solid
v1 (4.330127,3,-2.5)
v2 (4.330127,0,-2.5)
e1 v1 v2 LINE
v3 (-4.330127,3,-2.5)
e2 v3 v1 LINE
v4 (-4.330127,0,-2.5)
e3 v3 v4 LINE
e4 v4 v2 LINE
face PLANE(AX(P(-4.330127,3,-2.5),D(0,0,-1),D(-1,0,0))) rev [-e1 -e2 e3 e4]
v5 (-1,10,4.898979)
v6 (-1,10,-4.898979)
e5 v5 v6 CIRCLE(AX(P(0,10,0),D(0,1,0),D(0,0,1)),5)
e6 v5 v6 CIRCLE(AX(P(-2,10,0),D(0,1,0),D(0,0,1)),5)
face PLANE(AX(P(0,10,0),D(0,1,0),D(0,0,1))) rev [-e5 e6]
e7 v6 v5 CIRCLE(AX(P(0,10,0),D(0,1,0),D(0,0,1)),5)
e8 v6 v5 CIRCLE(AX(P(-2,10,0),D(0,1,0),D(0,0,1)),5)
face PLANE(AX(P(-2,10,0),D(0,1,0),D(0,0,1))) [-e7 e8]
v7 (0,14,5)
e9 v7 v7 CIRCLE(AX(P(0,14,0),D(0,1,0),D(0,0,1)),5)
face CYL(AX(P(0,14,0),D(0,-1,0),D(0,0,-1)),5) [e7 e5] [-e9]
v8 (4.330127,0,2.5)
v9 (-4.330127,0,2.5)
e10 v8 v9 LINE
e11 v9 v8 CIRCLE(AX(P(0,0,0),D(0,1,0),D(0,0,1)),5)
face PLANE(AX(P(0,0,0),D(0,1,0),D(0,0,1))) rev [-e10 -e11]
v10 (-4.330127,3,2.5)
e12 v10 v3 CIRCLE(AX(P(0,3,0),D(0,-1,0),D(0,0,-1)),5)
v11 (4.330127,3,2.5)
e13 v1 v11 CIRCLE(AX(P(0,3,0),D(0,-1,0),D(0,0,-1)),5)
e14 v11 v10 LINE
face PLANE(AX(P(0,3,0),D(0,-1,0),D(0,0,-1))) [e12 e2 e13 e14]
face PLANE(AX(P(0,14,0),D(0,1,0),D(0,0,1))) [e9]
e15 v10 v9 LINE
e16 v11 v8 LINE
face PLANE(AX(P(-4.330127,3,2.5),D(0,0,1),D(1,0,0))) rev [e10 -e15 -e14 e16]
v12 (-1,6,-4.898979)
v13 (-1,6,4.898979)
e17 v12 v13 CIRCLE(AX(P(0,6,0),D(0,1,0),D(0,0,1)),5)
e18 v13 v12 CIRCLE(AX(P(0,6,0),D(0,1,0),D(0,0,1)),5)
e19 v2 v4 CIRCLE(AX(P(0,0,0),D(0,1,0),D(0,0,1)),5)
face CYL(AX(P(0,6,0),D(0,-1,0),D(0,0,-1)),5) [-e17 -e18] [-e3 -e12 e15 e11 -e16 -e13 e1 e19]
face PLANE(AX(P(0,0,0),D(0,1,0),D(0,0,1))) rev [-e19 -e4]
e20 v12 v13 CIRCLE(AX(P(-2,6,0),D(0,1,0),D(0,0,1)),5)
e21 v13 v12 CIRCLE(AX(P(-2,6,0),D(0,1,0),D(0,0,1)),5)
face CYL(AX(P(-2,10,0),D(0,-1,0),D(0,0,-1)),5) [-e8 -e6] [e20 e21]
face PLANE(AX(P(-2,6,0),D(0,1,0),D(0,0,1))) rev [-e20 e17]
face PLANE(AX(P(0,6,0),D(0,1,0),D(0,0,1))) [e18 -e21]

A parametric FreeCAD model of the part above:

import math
import FreeCAD as App
import Part
import Sketcher

V = App.Vector
Q = App.Units.Quantity

doc = App.newDocument("Part")
params = doc.addObject("Spreadsheet::Sheet", "Params")
for row, (alias, value) in enumerate([
    ("sketch1_diameter", "10 mm"),
    ("pad1_length", "6 mm"),
    ("sketch2_diameter", "10 mm"),
    ("pad2_length", "4 mm"),
    ("sketch3_diameter", "10 mm"),
    ("pad3_length", "4 mm"),
    ("sketch4_radius", "5 mm"),
    ("pocket1_length", "3 mm"),
], start=1):
    params.set(f"A{row}", alias)
    params.set(f"B{row}", "=" + value)
    params.setAlias(f"B{row}", alias)

body = doc.addObject("PartDesign::Body", "Body")

sketch1 = body.newObject("Sketcher::SketchObject", "Sketch")
sketch1.AttachmentSupport = (doc.getObject("XZ_Plane"), [""])
sketch1.MapMode = "FlatFace"
sketch1.addGeometry(Part.Circle(V(0, 0, 0), V(0, 0, 1), 5), False)
sketch1.addConstraint([
    Sketcher.Constraint("Coincident", 0, 3, -1, 1),
    Sketcher.Constraint("Diameter", 0, Q("10 mm")),
])
sketch1.setExpression("Constraints[1]", "Params.sketch1_diameter")
pad1 = body.newObject("PartDesign::Pad", "Pad")
pad1.Profile = sketch1
pad1.setExpression("Length", "Params.pad1_length")
pad1.Reversed = True

sketch2 = body.newObject("Sketcher::SketchObject", "Sketch001")
sketch2.AttachmentSupport = (doc.getObject("XZ_Plane"), [""])
sketch2.MapMode = "FlatFace"
sketch2.AttachmentOffset = App.Placement(V(0, 0, -6), App.Rotation())
sketch2.addGeometry(Part.Circle(V(-2, 0, 0), V(0, 0, 1), 5), False)
sketch2.addConstraint([
    Sketcher.Constraint("PointOnObject", 0, 3, -1),
    Sketcher.Constraint("Diameter", 0, Q("10 mm")),
    Sketcher.Constraint("DistanceX", 0, 3, -1, 1, Q("2 mm")),
])
sketch2.setExpression("Constraints[1]", "Params.sketch2_diameter")
pad2 = body.newObject("PartDesign::Pad", "Pad001")
pad2.Profile = sketch2
pad2.setExpression("Length", "Params.pad2_length")
pad2.Reversed = True

sketch3 = body.newObject("Sketcher::SketchObject", "Sketch002")
sketch3.AttachmentSupport = (doc.getObject("XZ_Plane"), [""])
sketch3.MapMode = "FlatFace"
sketch3.AttachmentOffset = App.Placement(V(0, 0, -10), App.Rotation())
sketch3.addGeometry(Part.Circle(V(0, 0, 0), V(0, 0, 1), 5), False)
sketch3.addConstraint([
    Sketcher.Constraint("Coincident", 0, 3, -1, 1),
    Sketcher.Constraint("Diameter", 0, Q("10 mm")),
])
sketch3.setExpression("Constraints[1]", "Params.sketch3_diameter")
pad3 = body.newObject("PartDesign::Pad", "Pad002")
pad3.Profile = sketch3
pad3.setExpression("Length", "Params.pad3_length")
pad3.Reversed = True

sketch4 = body.newObject("Sketcher::SketchObject", "Sketch003")
sketch4.AttachmentSupport = (doc.getObject("XZ_Plane"), [""])
sketch4.MapMode = "FlatFace"
sketch4.addGeometry([
    Part.LineSegment(V(4.330127, 2.5, 0), V(-4.330127, 2.5, 0)),
    Part.ArcOfCircle(Part.Circle(V(0, 0, 0), V(0, 0, 1), 5), math.radians(150), math.radians(210)),
    Part.LineSegment(V(-4.330127, -2.5, 0), V(4.330127, -2.5, 0)),
    Part.ArcOfCircle(Part.Circle(V(0, 0, 0), V(0, 0, 1), 5), math.radians(-30), math.radians(30)),
], False)
sketch4.addConstraint([
    Sketcher.Constraint("Coincident", 0, 2, 1, 1),
    Sketcher.Constraint("Coincident", 1, 2, 2, 1),
    Sketcher.Constraint("Coincident", 2, 2, 3, 1),
    Sketcher.Constraint("Coincident", 3, 2, 0, 1),
    Sketcher.Constraint("Horizontal", 0),
    Sketcher.Constraint("Horizontal", 2),
    Sketcher.Constraint("Coincident", 1, 3, -1, 1),
    Sketcher.Constraint("Coincident", 3, 3, -1, 1),
    Sketcher.Constraint("Equal", 1, 3),
    Sketcher.Constraint("Vertical", 0, 2, 1, 2),
    Sketcher.Constraint("Radius", 1, Q("5 mm")),
    Sketcher.Constraint("DistanceY", 1, 2, 0, 2, Q("5 mm")),
])
sketch4.setExpression("Constraints[10]", "Params.sketch4_radius")
pocket1 = body.newObject("PartDesign::Pocket", "Pocket")
pocket1.Profile = sketch4
pocket1.setExpression("Length", "Params.pocket1_length")

doc.recompute()
